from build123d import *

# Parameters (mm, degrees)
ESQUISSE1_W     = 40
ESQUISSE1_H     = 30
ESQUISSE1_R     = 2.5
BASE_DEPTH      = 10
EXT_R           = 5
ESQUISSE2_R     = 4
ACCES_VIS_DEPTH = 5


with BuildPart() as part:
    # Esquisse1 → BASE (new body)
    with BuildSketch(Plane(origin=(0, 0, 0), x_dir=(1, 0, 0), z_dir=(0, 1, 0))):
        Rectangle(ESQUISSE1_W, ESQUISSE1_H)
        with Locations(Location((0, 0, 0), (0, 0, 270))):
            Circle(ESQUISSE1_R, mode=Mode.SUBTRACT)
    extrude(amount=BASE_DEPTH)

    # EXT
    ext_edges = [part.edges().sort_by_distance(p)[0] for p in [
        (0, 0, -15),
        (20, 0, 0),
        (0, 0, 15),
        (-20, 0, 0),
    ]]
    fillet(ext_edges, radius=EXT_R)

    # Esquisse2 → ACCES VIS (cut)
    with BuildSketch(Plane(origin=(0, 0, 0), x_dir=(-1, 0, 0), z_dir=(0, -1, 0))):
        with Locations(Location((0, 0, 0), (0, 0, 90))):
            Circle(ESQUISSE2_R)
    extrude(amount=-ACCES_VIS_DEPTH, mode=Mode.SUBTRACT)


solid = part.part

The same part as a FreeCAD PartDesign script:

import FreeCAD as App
import Part
import Sketcher

V = App.Vector


def edges_at(feature, points):
    """Names of the edges that pass closest to the given points."""
    edges = feature.Shape.Edges
    near = lambda p: min(range(len(edges)), key=lambda i: edges[i].distToShape(Part.Vertex(*p))[0])
    return sorted({f"Edge{near(p) + 1}" for p in points})


def add_polygon(sketch, points):
    """Adds a closed chain of lines whose ends are joined by coincident constraints."""
    first, n = sketch.GeometryCount, len(points)
    for a, b in zip(points, points[1:] + points[:1]):
        sketch.addGeometry(Part.LineSegment(App.Vector(*a, 0), App.Vector(*b, 0)), False)
    for i in range(n):
        sketch.addConstraint(Sketcher.Constraint("Coincident", first + i, 2, first + (i + 1) % n, 1))

doc = App.newDocument("Part")
body = doc.addObject("PartDesign::Body", "Body")

# Sketch on XZ plane
sketch1 = body.newObject("Sketcher::SketchObject", "Sketch")
sketch1.AttachmentSupport = (doc.getObject("XZ_Plane"), [""])
sketch1.MapMode = "FlatFace"
add_polygon(sketch1, [(-20, -15), (-20, 15), (20, 15), (20, -15)])  # lines 0-3
sketch1.addGeometry(Part.Circle(V(0, 0, 0), V(0, 0, 1), 2.5), False)  # 4
sketch1.addConstraint([
    Sketcher.Constraint("Vertical", 0),
    Sketcher.Constraint("Horizontal", 1),
    Sketcher.Constraint("Vertical", 2),
    Sketcher.Constraint("Horizontal", 3),
    Sketcher.Constraint("Coincident", 4, 3, -1, 1),
    Sketcher.Constraint("Symmetric", 0, 2, 2, 2, -1, 1),
    Sketcher.Constraint("Diameter", 4, 5.0),
    Sketcher.Constraint("DistanceX", 1, 1, 1, 2, 40.0),
    Sketcher.Constraint("DistanceY", 0, 1, 0, 2, 30.0),
])
pad1 = body.newObject("PartDesign::Pad", "Pad")
pad1.Profile = sketch1
pad1.Length = 10
pad1.Reversed = True
doc.recompute()

fillet = body.newObject("PartDesign::Fillet", "Fillet")
fillet.Base = (pad1, edges_at(pad1, [
    (0, 0, -15),
    (20, 0, 0),
    (0, 0, 15),
    (-20, 0, 0),
]))
fillet.Radius = 5

# Sketch on XZ plane
sketch2 = body.newObject("Sketcher::SketchObject", "Sketch001")
sketch2.AttachmentSupport = (doc.getObject("XZ_Plane"), [""])
sketch2.MapMode = "FlatFace"
sketch2.addGeometry(Part.Circle(V(0, 0, 0), V(0, 0, 1), 4), False)
sketch2.addConstraint([
    Sketcher.Constraint("Coincident", 0, 3, -1, 1),
    Sketcher.Constraint("Diameter", 0, 8.0),
])
pocket1 = body.newObject("PartDesign::Pocket", "Pocket")
pocket1.Profile = sketch2
pocket1.Length = 5

doc.recompute()
